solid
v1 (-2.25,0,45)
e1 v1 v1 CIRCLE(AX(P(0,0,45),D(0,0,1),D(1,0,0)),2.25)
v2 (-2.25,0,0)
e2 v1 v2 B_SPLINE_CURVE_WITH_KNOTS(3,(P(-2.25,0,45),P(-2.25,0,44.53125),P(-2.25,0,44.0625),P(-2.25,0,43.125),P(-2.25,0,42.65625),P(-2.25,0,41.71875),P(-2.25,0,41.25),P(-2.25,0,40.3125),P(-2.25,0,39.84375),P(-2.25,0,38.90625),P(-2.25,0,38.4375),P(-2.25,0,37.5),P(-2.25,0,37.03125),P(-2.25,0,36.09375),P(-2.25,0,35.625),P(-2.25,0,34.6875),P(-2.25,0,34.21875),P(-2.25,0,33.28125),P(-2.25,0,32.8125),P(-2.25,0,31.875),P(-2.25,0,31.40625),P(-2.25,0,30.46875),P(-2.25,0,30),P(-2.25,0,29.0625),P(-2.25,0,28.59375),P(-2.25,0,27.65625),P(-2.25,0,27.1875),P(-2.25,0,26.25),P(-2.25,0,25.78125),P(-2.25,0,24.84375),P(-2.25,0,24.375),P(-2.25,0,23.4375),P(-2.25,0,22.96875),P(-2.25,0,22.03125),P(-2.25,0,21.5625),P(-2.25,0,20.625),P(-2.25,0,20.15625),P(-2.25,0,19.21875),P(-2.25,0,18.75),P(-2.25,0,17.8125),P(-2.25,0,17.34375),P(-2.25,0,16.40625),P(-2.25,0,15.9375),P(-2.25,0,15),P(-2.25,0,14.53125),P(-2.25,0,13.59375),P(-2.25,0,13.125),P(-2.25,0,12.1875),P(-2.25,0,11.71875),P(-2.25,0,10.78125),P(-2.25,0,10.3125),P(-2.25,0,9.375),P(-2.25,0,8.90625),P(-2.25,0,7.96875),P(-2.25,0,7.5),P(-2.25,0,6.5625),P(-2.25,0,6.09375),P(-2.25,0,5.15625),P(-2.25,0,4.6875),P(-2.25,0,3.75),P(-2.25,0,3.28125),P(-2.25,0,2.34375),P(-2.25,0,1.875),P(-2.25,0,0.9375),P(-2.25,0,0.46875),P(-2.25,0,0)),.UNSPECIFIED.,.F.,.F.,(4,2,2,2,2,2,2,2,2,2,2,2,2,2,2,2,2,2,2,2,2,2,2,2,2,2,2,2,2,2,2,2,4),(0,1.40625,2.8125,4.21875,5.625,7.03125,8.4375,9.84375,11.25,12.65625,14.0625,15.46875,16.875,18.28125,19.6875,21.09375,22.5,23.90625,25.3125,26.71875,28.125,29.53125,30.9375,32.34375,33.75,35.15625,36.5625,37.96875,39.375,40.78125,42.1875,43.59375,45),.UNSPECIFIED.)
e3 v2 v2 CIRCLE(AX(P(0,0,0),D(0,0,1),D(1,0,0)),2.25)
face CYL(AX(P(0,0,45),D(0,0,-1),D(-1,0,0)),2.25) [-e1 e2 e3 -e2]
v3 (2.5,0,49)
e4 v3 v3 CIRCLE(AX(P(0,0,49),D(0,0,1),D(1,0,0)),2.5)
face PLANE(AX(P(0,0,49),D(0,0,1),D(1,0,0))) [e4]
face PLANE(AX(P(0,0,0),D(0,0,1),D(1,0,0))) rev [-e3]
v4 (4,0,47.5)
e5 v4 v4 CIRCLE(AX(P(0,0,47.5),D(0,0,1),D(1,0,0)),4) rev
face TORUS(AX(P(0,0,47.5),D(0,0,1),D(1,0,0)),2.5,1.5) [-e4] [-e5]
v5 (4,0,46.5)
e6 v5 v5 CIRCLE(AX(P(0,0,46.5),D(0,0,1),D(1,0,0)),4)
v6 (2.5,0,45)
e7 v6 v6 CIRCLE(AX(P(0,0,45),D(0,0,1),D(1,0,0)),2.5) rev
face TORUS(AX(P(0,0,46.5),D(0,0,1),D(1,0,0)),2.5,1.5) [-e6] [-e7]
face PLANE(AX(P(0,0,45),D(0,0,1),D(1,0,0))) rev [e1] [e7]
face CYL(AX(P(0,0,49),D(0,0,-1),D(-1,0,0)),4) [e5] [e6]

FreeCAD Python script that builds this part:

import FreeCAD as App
import Part
import Sketcher

V = App.Vector


def edges_at(feature, points):
    """Names of the edges that pass closest to the given points."""
    edges = feature.Shape.Edges
    near = lambda p: min(range(len(edges)), key=lambda i: edges[i].distToShape(Part.Vertex(*p))[0])
    return sorted({f"Edge{near(p) + 1}" for p in points})

doc = App.newDocument("Part")
params = doc.addObject("Spreadsheet::Sheet", "Params")
for row, (alias, value) in enumerate([
    ("sketch1_diameter", "4.5 mm"),
    ("pad1_length", "45 mm"),
    ("sketch2_diameter", "8 mm"),
    ("pad2_length", "4 mm"),
    ("fillet_radius", "1.5 mm"),
], start=1):
    params.set(f"A{row}", alias)
    params.set(f"B{row}", "=" + value)
    params.setAlias(f"B{row}", alias)

body = doc.addObject("PartDesign::Body", "Body")

# Sketch on XY plane
sketch1 = doc.addObject("Sketcher::SketchObject", "Sketch")
body.addObject(sketch1)
sketch1.AttachmentSupport = (doc.XY_Plane, [""])
sketch1.MapMode = "FlatFace"
sketch1.addGeometry(Part.Circle(V(0, 0, 0), V(0, 0, 1), 2.2), False)
sketch1.addConstraint(Sketcher.Constraint("Coincident", 0, 3, -1, 1))
sketch1.addConstraint(Sketcher.Constraint("Diameter", 0, 4.5))
sketch1.setExpression("Constraints[1]", "Params.sketch1_diameter")
pad1 = doc.addObject("PartDesign::Pad", "Pad")
body.addObject(pad1)
pad1.Profile = sketch1
pad1.setExpression("Length", "Params.pad1_length")

# Sketch on XY plane
sketch2 = doc.addObject("Sketcher::SketchObject", "Sketch001")
body.addObject(sketch2)
sketch2.AttachmentSupport = (doc.XY_Plane, [""])
sketch2.MapMode = "FlatFace"
sketch2.AttachmentOffset = App.Placement(V(0, 0, 45), App.Rotation())
sketch2.addGeometry(Part.Circle(V(0, 0, 0), V(0, 0, 1), 4), False)
sketch2.addConstraint(Sketcher.Constraint("Coincident", 0, 3, -1, 1))
sketch2.addConstraint(Sketcher.Constraint("Diameter", 0, 8.0))
sketch2.setExpression("Constraints[1]", "Params.sketch2_diameter")
pad2 = doc.addObject("PartDesign::Pad", "Pad001")
body.addObject(pad2)
pad2.Profile = sketch2
pad2.setExpression("Length", "Params.pad2_length")
doc.recompute()

fillet = doc.addObject("PartDesign::Fillet", "Fillet")
body.addObject(fillet)
fillet.Base = (pad2, edges_at(pad2, [(-4, 0, 45), (-4, 0, 49)]))
fillet.setExpression("Radius", "Params.fillet_radius")

doc.recompute()
